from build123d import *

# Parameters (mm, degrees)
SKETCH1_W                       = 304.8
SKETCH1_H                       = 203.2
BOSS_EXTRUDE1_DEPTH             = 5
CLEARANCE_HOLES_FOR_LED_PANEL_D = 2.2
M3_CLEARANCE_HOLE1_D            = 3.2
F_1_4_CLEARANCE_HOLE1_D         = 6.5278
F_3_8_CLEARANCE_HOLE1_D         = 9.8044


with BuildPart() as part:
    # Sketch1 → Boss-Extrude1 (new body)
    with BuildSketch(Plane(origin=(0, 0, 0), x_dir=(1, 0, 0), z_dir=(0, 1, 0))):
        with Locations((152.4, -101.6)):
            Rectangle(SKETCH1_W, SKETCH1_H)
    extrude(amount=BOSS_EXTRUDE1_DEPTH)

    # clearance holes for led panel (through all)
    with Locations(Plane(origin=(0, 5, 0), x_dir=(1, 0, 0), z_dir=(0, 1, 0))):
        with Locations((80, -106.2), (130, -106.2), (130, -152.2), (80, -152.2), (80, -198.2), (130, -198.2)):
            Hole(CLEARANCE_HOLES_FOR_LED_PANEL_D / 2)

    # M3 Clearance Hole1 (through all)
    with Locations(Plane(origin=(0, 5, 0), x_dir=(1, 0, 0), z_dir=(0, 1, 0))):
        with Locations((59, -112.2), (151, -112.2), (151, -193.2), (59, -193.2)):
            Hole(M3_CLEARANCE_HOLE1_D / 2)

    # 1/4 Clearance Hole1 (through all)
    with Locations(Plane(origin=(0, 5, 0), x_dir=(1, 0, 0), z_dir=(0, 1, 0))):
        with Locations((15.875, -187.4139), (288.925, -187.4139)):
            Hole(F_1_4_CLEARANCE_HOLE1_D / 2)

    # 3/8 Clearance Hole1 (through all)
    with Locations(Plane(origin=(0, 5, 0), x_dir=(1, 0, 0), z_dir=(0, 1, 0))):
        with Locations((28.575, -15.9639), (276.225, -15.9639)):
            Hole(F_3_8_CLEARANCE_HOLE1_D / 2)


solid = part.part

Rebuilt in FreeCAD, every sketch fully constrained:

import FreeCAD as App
import Part
import Sketcher
from FreeCAD import Vector
Q = App.Units.Quantity

doc = App.newDocument("Part")
body = doc.addObject("PartDesign::Body", "Body")

sketch1 = doc.addObject("Sketcher::SketchObject", "Sketch")
body.addObject(sketch1)
sketch1.AttachmentSupport = (doc.XZ_Plane, [""])
sketch1.MapMode = "FlatFace"
sketch1.addGeometry(Part.LineSegment(Vector(0, 0, 0), Vector(0, 203, 0)), False)
sketch1.addGeometry(Part.LineSegment(Vector(0, 203, 0), Vector(305, 203, 0)), False)
sketch1.addGeometry(Part.LineSegment(Vector(305, 203, 0), Vector(305, 0, 0)), False)
sketch1.addGeometry(Part.LineSegment(Vector(305, 0, 0), Vector(0, 0, 0)), False)
sketch1.addConstraint(Sketcher.Constraint("Coincident", 0, 2, 1, 1))
sketch1.addConstraint(Sketcher.Constraint("Coincident", 1, 2, 2, 1))
sketch1.addConstraint(Sketcher.Constraint("Coincident", 2, 2, 3, 1))
sketch1.addConstraint(Sketcher.Constraint("Coincident", 3, 2, 0, 1))
sketch1.addConstraint(Sketcher.Constraint("Vertical", 0))
sketch1.addConstraint(Sketcher.Constraint("Horizontal", 1))
sketch1.addConstraint(Sketcher.Constraint("Vertical", 2))
sketch1.addConstraint(Sketcher.Constraint("Horizontal", 3))
sketch1.addConstraint(Sketcher.Constraint("Coincident", 3, 2, -1, 1))
sketch1.addConstraint(Sketcher.Constraint("DistanceX", 1, 1, 1, 2, Q("12 in")))
sketch1.addConstraint(Sketcher.Constraint("DistanceY", 0, 1, 0, 2, Q("8 in")))
pad1 = doc.addObject("PartDesign::Pad", "Pad")
body.addObject(pad1)
pad1.Profile = sketch1
pad1.Length = 5
pad1.Reversed = True

sketch2 = doc.addObject("Sketcher::SketchObject", "Sketch001")
body.addObject(sketch2)
sketch2.AttachmentSupport = (doc.XZ_Plane, [""])
sketch2.MapMode = "FlatFace"
sketch2.AttachmentOffset = App.Placement(Vector(0, 0, -5), App.Rotation())
sketch2.addGeometry(Part.Circle(Vector(80, 106.2, 0), Vector(0, 0, 1), 1.1), False)
sketch2.addGeometry(Part.Circle(Vector(130, 106.2, 0), Vector(0, 0, 1), 1.1), False)
sketch2.addGeometry(Part.Circle(Vector(130, 152.2, 0), Vector(0, 0, 1), 1.1), False)
sketch2.addGeometry(Part.Circle(Vector(80, 152.2, 0), Vector(0, 0, 1), 1.1), False)
sketch2.addGeometry(Part.Circle(Vector(80, 198.2, 0), Vector(0, 0, 1), 1.1), False)
sketch2.addGeometry(Part.Circle(Vector(130, 198.2, 0), Vector(0, 0, 1), 1.1), False)
sketch2.addConstraint(Sketcher.Constraint("Equal", 0, 1))
sketch2.addConstraint(Sketcher.Constraint("Equal", 1, 2))
sketch2.addConstraint(Sketcher.Constraint("Equal", 2, 3))
sketch2.addConstraint(Sketcher.Constraint("Equal", 3, 4))
sketch2.addConstraint(Sketcher.Constraint("Equal", 4, 5))
sketch2.addConstraint(Sketcher.Constraint("Horizontal", 0, 3, 1, 3))
sketch2.addConstraint(Sketcher.Constraint("Horizontal", 2, 3, 3, 3))
sketch2.addConstraint(Sketcher.Constraint("Horizontal", 4, 3, 5, 3))
sketch2.addConstraint(Sketcher.Constraint("Vertical", 1, 3, 2, 3))
sketch2.addConstraint(Sketcher.Constraint("Vertical", 0, 3, 3, 3))
sketch2.addConstraint(Sketcher.Constraint("Vertical", 3, 3, 4, 3))
sketch2.addConstraint(Sketcher.Constraint("Vertical", 2, 3, 5, 3))
sketch2.addConstraint(Sketcher.Constraint("Diameter", 0, Q("2.2 mm")))
sketch2.addConstraint(Sketcher.Constraint("DistanceX", -1, 1, 0, 3, Q("80 mm")))
sketch2.addConstraint(Sketcher.Constraint("DistanceY", -1, 1, 0, 3, Q("106.2 mm")))
sketch2.addConstraint(Sketcher.Constraint("DistanceX", -1, 1, 1, 3, Q("130 mm")))
sketch2.addConstraint(Sketcher.Constraint("DistanceY", -1, 1, 2, 3, Q("152.2 mm")))
sketch2.addConstraint(Sketcher.Constraint("DistanceY", -1, 1, 4, 3, Q("198.2 mm")))
doc.recompute()
hole = doc.addObject("PartDesign::Hole", "Hole")
body.addObject(hole)
hole.Profile = sketch2
hole.ThreadType = "None"
hole.Diameter = 2.2
hole.DepthType = "ThroughAll"
hole.Reversed = True

sketch3 = doc.addObject("Sketcher::SketchObject", "Sketch002")
body.addObject(sketch3)
sketch3.AttachmentSupport = (doc.XZ_Plane, [""])
sketch3.MapMode = "FlatFace"
sketch3.AttachmentOffset = App.Placement(Vector(0, 0, -5), App.Rotation())
sketch3.addGeometry(Part.Circle(Vector(59, 112.2, 0), Vector(0, 0, 1), 1.6), False)
sketch3.addGeometry(Part.Circle(Vector(151, 112.2, 0), Vector(0, 0, 1), 1.6), False)
sketch3.addGeometry(Part.Circle(Vector(151, 193.2, 0), Vector(0, 0, 1), 1.6), False)
sketch3.addGeometry(Part.Circle(Vector(59, 193.2, 0), Vector(0, 0, 1), 1.6), False)
sketch3.addConstraint(Sketcher.Constraint("Equal", 0, 1))
sketch3.addConstraint(Sketcher.Constraint("Equal", 1, 2))
sketch3.addConstraint(Sketcher.Constraint("Equal", 2, 3))
sketch3.addConstraint(Sketcher.Constraint("Horizontal", 0, 3, 1, 3))
sketch3.addConstraint(Sketcher.Constraint("Horizontal", 2, 3, 3, 3))
sketch3.addConstraint(Sketcher.Constraint("Vertical", 1, 3, 2, 3))
sketch3.addConstraint(Sketcher.Constraint("Vertical", 0, 3, 3, 3))
sketch3.addConstraint(Sketcher.Constraint("Diameter", 0, Q("3.2 mm")))
sketch3.addConstraint(Sketcher.Constraint("DistanceX", -1, 1, 0, 3, Q("59 mm")))
sketch3.addConstraint(Sketcher.Constraint("DistanceY", -1, 1, 0, 3, Q("112.2 mm")))
sketch3.addConstraint(Sketcher.Constraint("DistanceX", -1, 1, 1, 3, Q("151 mm")))
sketch3.addConstraint(Sketcher.Constraint("DistanceY", -1, 1, 2, 3, Q("193.2 mm")))
doc.recompute()
hole2 = doc.addObject("PartDesign::Hole", "Hole001")
body.addObject(hole2)
hole2.Profile = sketch3
hole2.ThreadType = "None"
hole2.Diameter = 3.2
hole2.DepthType = "ThroughAll"
hole2.Reversed = True

sketch4 = doc.addObject("Sketcher::SketchObject", "Sketch003")
body.addObject(sketch4)
sketch4.AttachmentSupport = (doc.XZ_Plane, [""])
sketch4.MapMode = "FlatFace"
sketch4.AttachmentOffset = App.Placement(Vector(0, 0, -5), App.Rotation())
sketch4.addGeometry(Part.Circle(Vector(15.9, 187.4, 0), Vector(0, 0, 1), 3.3), False)
sketch4.addGeometry(Part.Circle(Vector(288.9, 187.4, 0), Vector(0, 0, 1), 3.3), False)
sketch4.addConstraint(Sketcher.Constraint("Equal", 0, 1))
sketch4.addConstraint(Sketcher.Constraint("Horizontal", 0, 3, 1, 3))
sketch4.addConstraint(Sketcher.Constraint("Diameter", 0, Q("0.257 in")))
sketch4.addConstraint(Sketcher.Constraint("DistanceX", 0, 3, 1, 3, Q("10.75 in")))
sketch4.addConstraint(Sketcher.Constraint("DistanceX", -1, 1, 0, 3, Q("0.625 in")))
sketch4.addConstraint(Sketcher.Constraint("DistanceY", -1, 1, 0, 3, Q("7.3785 in")))
doc.recompute()
hole3 = doc.addObject("PartDesign::Hole", "Hole002")
body.addObject(hole3)
hole3.Profile = sketch4
hole3.ThreadType = "None"
hole3.Diameter = Q("0.257 in")
hole3.DepthType = "ThroughAll"
hole3.Reversed = True

sketch5 = doc.addObject("Sketcher::SketchObject", "Sketch004")
body.addObject(sketch5)
sketch5.AttachmentSupport = (doc.XZ_Plane, [""])
sketch5.MapMode = "FlatFace"
sketch5.AttachmentOffset = App.Placement(Vector(0, 0, -5), App.Rotation())
sketch5.addGeometry(Part.Circle(Vector(28.6, 16, 0), Vector(0, 0, 1), 4.9), False)
sketch5.addGeometry(Part.Circle(Vector(276.2, 16, 0), Vector(0, 0, 1), 4.9), False)
sketch5.addConstraint(Sketcher.Constraint("Equal", 0, 1))
sketch5.addConstraint(Sketcher.Constraint("Horizontal", 0, 3, 1, 3))
sketch5.addConstraint(Sketcher.Constraint("Diameter", 0, Q("0.386 in")))
sketch5.addConstraint(Sketcher.Constraint("DistanceX", 0, 3, 1, 3, Q("9.75 in")))
sketch5.addConstraint(Sketcher.Constraint("DistanceX", -1, 1, 0, 3, Q("1.125 in")))
sketch5.addConstraint(Sketcher.Constraint("DistanceY", -1, 1, 0, 3, Q("0.6285 in")))
doc.recompute()
hole4 = doc.addObject("PartDesign::Hole", "Hole003")
body.addObject(hole4)
hole4.Profile = sketch5
hole4.ThreadType = "None"
hole4.Diameter = Q("0.386 in")
hole4.DepthType = "ThroughAll"
hole4.Reversed = True

doc.recompute()
